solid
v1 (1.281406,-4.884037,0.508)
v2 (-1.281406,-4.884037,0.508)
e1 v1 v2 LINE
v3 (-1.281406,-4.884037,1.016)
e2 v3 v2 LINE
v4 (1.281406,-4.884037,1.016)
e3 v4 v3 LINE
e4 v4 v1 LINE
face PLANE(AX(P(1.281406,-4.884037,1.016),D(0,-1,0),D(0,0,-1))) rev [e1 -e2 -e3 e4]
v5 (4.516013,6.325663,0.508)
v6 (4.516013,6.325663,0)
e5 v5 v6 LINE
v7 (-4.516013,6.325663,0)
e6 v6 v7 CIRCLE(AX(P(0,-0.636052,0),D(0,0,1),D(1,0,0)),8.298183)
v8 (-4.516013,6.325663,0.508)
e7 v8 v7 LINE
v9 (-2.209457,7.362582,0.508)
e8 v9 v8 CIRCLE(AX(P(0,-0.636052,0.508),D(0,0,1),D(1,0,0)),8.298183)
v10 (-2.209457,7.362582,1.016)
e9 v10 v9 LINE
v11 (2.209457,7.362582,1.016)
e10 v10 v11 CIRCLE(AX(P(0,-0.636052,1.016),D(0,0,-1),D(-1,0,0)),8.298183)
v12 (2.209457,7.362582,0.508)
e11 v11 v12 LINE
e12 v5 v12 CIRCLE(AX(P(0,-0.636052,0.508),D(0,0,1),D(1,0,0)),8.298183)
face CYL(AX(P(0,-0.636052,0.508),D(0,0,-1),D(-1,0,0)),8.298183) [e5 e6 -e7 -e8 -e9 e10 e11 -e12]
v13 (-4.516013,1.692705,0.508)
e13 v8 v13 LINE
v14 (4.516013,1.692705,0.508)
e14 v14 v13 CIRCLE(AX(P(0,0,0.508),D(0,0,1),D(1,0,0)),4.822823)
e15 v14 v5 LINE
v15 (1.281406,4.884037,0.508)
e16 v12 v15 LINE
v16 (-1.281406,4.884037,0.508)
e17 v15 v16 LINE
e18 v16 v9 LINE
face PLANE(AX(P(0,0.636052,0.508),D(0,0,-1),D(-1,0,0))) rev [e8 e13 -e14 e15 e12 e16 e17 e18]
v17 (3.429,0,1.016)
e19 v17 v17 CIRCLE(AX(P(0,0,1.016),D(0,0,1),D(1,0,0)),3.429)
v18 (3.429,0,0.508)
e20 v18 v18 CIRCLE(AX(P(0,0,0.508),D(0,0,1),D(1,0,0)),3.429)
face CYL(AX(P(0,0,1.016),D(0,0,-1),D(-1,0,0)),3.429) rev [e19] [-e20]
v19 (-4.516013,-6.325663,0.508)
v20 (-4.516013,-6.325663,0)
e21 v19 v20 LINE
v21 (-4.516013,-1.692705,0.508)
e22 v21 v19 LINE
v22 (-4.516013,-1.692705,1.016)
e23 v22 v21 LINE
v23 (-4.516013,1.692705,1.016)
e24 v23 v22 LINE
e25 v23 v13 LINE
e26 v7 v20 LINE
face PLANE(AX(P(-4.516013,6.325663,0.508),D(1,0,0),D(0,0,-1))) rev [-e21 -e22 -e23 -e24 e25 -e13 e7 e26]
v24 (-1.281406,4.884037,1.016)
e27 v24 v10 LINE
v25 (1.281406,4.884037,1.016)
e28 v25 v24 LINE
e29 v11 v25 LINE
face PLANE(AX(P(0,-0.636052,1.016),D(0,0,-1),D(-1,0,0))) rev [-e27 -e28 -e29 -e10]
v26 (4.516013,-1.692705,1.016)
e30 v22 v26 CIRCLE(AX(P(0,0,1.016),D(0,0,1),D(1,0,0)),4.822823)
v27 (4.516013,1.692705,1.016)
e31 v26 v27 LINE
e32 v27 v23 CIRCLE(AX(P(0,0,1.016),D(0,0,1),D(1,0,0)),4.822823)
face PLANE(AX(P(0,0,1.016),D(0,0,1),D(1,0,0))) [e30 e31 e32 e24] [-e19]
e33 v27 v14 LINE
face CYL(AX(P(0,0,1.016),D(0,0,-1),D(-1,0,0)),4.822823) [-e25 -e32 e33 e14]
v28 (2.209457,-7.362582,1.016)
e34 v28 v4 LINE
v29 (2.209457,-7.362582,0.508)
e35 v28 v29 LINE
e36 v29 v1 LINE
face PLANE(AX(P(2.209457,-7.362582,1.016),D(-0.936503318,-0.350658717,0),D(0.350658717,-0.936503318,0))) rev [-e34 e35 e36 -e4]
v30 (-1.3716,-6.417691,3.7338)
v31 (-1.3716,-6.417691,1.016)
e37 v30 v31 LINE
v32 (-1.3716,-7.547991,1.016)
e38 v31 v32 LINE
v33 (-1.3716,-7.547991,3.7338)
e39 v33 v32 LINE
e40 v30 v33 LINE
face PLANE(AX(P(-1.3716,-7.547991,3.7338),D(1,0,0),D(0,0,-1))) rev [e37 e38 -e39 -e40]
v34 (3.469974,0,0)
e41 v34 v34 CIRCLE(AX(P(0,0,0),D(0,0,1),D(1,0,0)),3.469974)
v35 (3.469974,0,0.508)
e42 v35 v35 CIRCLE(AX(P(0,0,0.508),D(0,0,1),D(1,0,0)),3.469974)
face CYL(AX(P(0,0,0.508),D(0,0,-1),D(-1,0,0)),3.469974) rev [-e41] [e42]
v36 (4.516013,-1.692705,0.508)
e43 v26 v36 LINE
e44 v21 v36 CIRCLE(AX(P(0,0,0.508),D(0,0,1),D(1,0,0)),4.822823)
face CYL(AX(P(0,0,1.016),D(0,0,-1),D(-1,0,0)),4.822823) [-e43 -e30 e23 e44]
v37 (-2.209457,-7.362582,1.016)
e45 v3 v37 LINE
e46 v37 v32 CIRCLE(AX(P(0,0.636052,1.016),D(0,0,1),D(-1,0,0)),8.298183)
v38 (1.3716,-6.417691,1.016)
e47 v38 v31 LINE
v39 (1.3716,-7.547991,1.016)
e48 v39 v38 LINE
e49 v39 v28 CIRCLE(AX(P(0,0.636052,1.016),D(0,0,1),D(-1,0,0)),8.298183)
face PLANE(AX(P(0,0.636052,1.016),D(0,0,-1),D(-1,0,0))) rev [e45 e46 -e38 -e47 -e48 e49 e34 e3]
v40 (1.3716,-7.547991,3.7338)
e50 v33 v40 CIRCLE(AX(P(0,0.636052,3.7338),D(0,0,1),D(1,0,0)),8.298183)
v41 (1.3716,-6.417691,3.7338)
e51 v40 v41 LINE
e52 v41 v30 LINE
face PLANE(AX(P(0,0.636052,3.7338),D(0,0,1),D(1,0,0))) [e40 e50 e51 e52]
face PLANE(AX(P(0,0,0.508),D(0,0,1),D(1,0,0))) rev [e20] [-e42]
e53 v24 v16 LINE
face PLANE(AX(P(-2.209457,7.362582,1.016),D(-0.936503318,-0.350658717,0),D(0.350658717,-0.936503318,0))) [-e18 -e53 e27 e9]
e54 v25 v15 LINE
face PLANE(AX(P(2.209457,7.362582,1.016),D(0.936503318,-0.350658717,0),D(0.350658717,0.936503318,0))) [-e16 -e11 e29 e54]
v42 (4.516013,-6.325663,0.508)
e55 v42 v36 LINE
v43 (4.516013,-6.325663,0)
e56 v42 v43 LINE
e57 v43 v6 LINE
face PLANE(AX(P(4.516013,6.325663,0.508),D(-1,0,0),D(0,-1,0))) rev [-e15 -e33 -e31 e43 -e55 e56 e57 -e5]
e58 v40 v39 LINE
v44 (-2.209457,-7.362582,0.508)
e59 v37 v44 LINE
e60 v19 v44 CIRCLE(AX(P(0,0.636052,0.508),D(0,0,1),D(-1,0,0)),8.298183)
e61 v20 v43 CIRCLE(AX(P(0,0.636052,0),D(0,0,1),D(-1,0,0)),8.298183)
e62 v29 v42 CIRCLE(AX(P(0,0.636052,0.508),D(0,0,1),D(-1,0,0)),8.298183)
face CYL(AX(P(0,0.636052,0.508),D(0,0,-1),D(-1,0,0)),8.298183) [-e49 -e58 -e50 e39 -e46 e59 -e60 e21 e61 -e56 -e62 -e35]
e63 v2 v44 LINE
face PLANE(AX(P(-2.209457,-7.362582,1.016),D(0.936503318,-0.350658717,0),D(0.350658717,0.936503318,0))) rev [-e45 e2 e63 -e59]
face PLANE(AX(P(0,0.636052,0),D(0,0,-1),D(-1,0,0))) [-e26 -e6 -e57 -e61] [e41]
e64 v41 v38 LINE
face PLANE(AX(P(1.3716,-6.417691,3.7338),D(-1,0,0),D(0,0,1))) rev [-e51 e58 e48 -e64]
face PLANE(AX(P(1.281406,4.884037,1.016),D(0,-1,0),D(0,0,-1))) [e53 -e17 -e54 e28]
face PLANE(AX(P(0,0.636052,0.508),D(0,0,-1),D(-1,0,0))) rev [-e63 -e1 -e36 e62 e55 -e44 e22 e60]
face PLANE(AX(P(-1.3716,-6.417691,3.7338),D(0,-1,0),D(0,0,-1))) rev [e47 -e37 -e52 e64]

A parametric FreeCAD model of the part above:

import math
import FreeCAD as App
import Part
import Sketcher
from FreeCAD import Vector
Q = App.Units.Quantity

doc = App.newDocument("Part")
params = doc.addObject("Spreadsheet::Sheet", "Params")
for row, (alias, value) in enumerate([
    ("pad1_length", "0.02 in"),
    ("pad2_length", "0.02 in"),
    ("sketch3_width", "0.108 in"),
    ("pad3_length", "0.107 in"),
    ("sketch4_diameter", "0.27 in"),
    ("pad4_length", "0.02 in"),
], start=1):
    params.set(f"A{row}", alias)
    params.set(f"B{row}", "=" + value)
    params.setAlias(f"B{row}", alias)

body = doc.addObject("PartDesign::Body", "Body")

sketch1 = body.newObject("Sketcher::SketchObject", "Sketch")
sketch1.AttachmentSupport = (doc.getObject("XY_Plane"), [""])
sketch1.MapMode = "FlatFace"
sketch1.addGeometry(Part.LineSegment(Vector(-4.5, 6.3, 0), Vector(-4.5, -6.3, 0)), False)
sketch1.addGeometry(Part.ArcOfCircle(Part.Circle(Vector(0, 0.6, 0), Vector(0, 0, 1), 8.3), math.radians(-123), math.radians(-57)), False)
sketch1.addGeometry(Part.LineSegment(Vector(4.5, -6.3, 0), Vector(4.5, 6.3, 0)), False)
sketch1.addGeometry(Part.ArcOfCircle(Part.Circle(Vector(0, -0.6, 0), Vector(0, 0, 1), 8.3), math.radians(57), math.radians(123)), False)
sketch1.addGeometry(Part.Circle(Vector(0, 0, 0), Vector(0, 0, 1), 3.5), False)
sketch1.addConstraint(Sketcher.Constraint("Coincident", 0, 2, 1, 1))
sketch1.addConstraint(Sketcher.Constraint("Coincident", 1, 2, 2, 1))
sketch1.addConstraint(Sketcher.Constraint("Coincident", 2, 2, 3, 1))
sketch1.addConstraint(Sketcher.Constraint("Coincident", 3, 2, 0, 1))
sketch1.addConstraint(Sketcher.Constraint("Vertical", 0))
sketch1.addConstraint(Sketcher.Constraint("Vertical", 2))
sketch1.addConstraint(Sketcher.Constraint("Coincident", 4, 3, -1, 1))
sketch1.addConstraint(Sketcher.Constraint("Equal", 1, 3))
sketch1.addConstraint(Sketcher.Constraint("Symmetric", 1, 3, 3, 3, -1, 1))
sketch1.addConstraint(Sketcher.Constraint("Symmetric", 0, 2, 1, 2, -2))
sketch1.addConstraint(Sketcher.Constraint("Radius", 1, Q("0.3267001 in")))
sketch1.addConstraint(Sketcher.Constraint("Diameter", 4, 6.939948))
sketch1.addConstraint(Sketcher.Constraint("DistanceY", 0, 2, 0, 1, 12.651326))
sketch1.addConstraint(Sketcher.Constraint("DistanceY", 0, 2, 3, 3, 5.689611))
pad1 = body.newObject("PartDesign::Pad", "Pad")
pad1.Profile = sketch1
pad1.setExpression("Length", "Params.pad1_length")

sketch2 = body.newObject("Sketcher::SketchObject", "Sketch001")
sketch2.AttachmentSupport = (doc.getObject("XY_Plane"), [""])
sketch2.MapMode = "FlatFace"
sketch2.AttachmentOffset = App.Placement(Vector(0, 0, 0.02 * 25.4), App.Rotation())
sketch2.addGeometry(Part.LineSegment(Vector(2.2, -7.4, 0), Vector(1.3, -4.9, 0)), False)
sketch2.addGeometry(Part.LineSegment(Vector(1.3, -4.9, 0), Vector(-1.3, -4.9, 0)), False)
sketch2.addGeometry(Part.LineSegment(Vector(-1.3, -4.9, 0), Vector(-2.2, -7.4, 0)), False)
sketch2.addGeometry(Part.ArcOfCircle(Part.Circle(Vector(0, 0.6, 0), Vector(0, 0, 1), 8.3), math.radians(-105), math.radians(-75)), False)
sketch2.addConstraint(Sketcher.Constraint("Coincident", 0, 2, 1, 1))
sketch2.addConstraint(Sketcher.Constraint("Coincident", 1, 2, 2, 1))
sketch2.addConstraint(Sketcher.Constraint("Coincident", 2, 2, 3, 1))
sketch2.addConstraint(Sketcher.Constraint("Coincident", 3, 2, 0, 1))
sketch2.addConstraint(Sketcher.Constraint("Horizontal", 1))
sketch2.addConstraint(Sketcher.Constraint("Symmetric", 2, 2, 3, 2, -2))
sketch2.addConstraint(Sketcher.Constraint("Equal", 0, 2))
sketch2.addConstraint(Sketcher.Constraint("Radius", 3, Q("0.3267001 in")))
sketch2.addConstraint(Sketcher.Constraint("DistanceX", 1, 2, 1, 1, 2.562811))
sketch2.addConstraint(Sketcher.Constraint("DistanceY", 0, 2, 3, 3, 5.520089))
sketch2.addConstraint(Sketcher.Constraint("DistanceX", 2, 2, 1, 2, 0.928051))
sketch2.addConstraint(Sketcher.Constraint("DistanceY", -1, 1, 3, 3, 0.636052))
pad2 = body.newObject("PartDesign::Pad", "Pad001")
pad2.Profile = sketch2
pad2.setExpression("Length", "Params.pad2_length")

sketch3 = body.newObject("Sketcher::SketchObject", "Sketch002")
sketch3.AttachmentSupport = (doc.getObject("XY_Plane"), [""])
sketch3.MapMode = "FlatFace"
sketch3.AttachmentOffset = App.Placement(Vector(0, 0, 0.04 * 25.4), App.Rotation())
sketch3.addGeometry(Part.LineSegment(Vector(-1.4, -6.4, 0), Vector(-1.4, -7.5, 0)), False)
sketch3.addGeometry(Part.ArcOfCircle(Part.Circle(Vector(0, 0.6, 0), Vector(0, 0, 1), 8.3), math.radians(-99.51), math.radians(-80.49)), False)
sketch3.addGeometry(Part.LineSegment(Vector(1.4, -7.5, 0), Vector(1.4, -6.4, 0)), False)
sketch3.addGeometry(Part.LineSegment(Vector(1.4, -6.4, 0), Vector(-1.4, -6.4, 0)), False)
sketch3.addConstraint(Sketcher.Constraint("Coincident", 0, 2, 1, 1))
sketch3.addConstraint(Sketcher.Constraint("Coincident", 1, 2, 2, 1))
sketch3.addConstraint(Sketcher.Constraint("Coincident", 2, 2, 3, 1))
sketch3.addConstraint(Sketcher.Constraint("Coincident", 3, 2, 0, 1))
sketch3.addConstraint(Sketcher.Constraint("Vertical", 0))
sketch3.addConstraint(Sketcher.Constraint("Vertical", 2))
sketch3.addConstraint(Sketcher.Constraint("Horizontal", 3))
sketch3.addConstraint(Sketcher.Constraint("Symmetric", 0, 2, 1, 2, -2))
sketch3.addConstraint(Sketcher.Constraint("Radius", 1, Q("0.3267001 in")))
sketch3.addConstraint(Sketcher.Constraint("DistanceX", 3, 2, 3, 1, Q("0.108 in")))
sketch3.addConstraint(Sketcher.Constraint("DistanceY", 0, 2, 0, 1, Q("0.0445 in")))
sketch3.addConstraint(Sketcher.Constraint("DistanceY", 0, 2, -1, 1, 7.547991))
sketch3.setExpression("Constraints[9]", "Params.sketch3_width")
pad3 = body.newObject("PartDesign::Pad", "Pad002")
pad3.Profile = sketch3
pad3.setExpression("Length", "Params.pad3_length")

sketch4 = body.newObject("Sketcher::SketchObject", "Sketch003")
sketch4.AttachmentSupport = (doc.getObject("XY_Plane"), [""])
sketch4.MapMode = "FlatFace"
sketch4.AttachmentOffset = App.Placement(Vector(0, 0, 0.02 * 25.4), App.Rotation())
sketch4.addGeometry(Part.LineSegment(Vector(4.5, -1.7, 0), Vector(4.5, 1.7, 0)), False)
sketch4.addGeometry(Part.ArcOfCircle(Part.Circle(Vector(0, 0, 0), Vector(0, 0, 1), 4.8), math.radians(21), math.radians(159)), False)
sketch4.addGeometry(Part.LineSegment(Vector(-4.5, 1.7, 0), Vector(-4.5, -1.7, 0)), False)
sketch4.addGeometry(Part.ArcOfCircle(Part.Circle(Vector(0, 0, 0), Vector(0, 0, 1), 4.8), math.radians(-159), math.radians(-21)), False)
sketch4.addGeometry(Part.Circle(Vector(0, 0, 0), Vector(0, 0, 1), 3.4), False)
sketch4.addConstraint(Sketcher.Constraint("Coincident", 0, 2, 1, 1))
sketch4.addConstraint(Sketcher.Constraint("Coincident", 1, 2, 2, 1))
sketch4.addConstraint(Sketcher.Constraint("Coincident", 2, 2, 3, 1))
sketch4.addConstraint(Sketcher.Constraint("Coincident", 3, 2, 0, 1))
sketch4.addConstraint(Sketcher.Constraint("Vertical", 0))
sketch4.addConstraint(Sketcher.Constraint("Vertical", 2))
sketch4.addConstraint(Sketcher.Constraint("Coincident", 1, 3, -1, 1))
sketch4.addConstraint(Sketcher.Constraint("Coincident", 3, 3, -1, 1))
sketch4.addConstraint(Sketcher.Constraint("Coincident", 4, 3, -1, 1))
sketch4.addConstraint(Sketcher.Constraint("Equal", 1, 3))
sketch4.addConstraint(Sketcher.Constraint("Horizontal", 0, 2, 1, 2))
sketch4.addConstraint(Sketcher.Constraint("Diameter", 4, Q("0.27 in")))
sketch4.addConstraint(Sketcher.Constraint("Radius", 1, 4.822823))
sketch4.addConstraint(Sketcher.Constraint("DistanceY", 0, 1, 0, 2, 3.385409))
sketch4.setExpression("Constraints[11]", "Params.sketch4_diameter")
pad4 = body.newObject("PartDesign::Pad", "Pad003")
pad4.Profile = sketch4
pad4.setExpression("Length", "Params.pad4_length")
doc.recompute()

mirrored = body.newObject("PartDesign::Mirrored", "Mirrored")
mirrored.Originals = [pad2]
mirrored.MirrorPlane = (doc.getObject("XZ_Plane"), [""])
body.Tip = mirrored

doc.recompute()
